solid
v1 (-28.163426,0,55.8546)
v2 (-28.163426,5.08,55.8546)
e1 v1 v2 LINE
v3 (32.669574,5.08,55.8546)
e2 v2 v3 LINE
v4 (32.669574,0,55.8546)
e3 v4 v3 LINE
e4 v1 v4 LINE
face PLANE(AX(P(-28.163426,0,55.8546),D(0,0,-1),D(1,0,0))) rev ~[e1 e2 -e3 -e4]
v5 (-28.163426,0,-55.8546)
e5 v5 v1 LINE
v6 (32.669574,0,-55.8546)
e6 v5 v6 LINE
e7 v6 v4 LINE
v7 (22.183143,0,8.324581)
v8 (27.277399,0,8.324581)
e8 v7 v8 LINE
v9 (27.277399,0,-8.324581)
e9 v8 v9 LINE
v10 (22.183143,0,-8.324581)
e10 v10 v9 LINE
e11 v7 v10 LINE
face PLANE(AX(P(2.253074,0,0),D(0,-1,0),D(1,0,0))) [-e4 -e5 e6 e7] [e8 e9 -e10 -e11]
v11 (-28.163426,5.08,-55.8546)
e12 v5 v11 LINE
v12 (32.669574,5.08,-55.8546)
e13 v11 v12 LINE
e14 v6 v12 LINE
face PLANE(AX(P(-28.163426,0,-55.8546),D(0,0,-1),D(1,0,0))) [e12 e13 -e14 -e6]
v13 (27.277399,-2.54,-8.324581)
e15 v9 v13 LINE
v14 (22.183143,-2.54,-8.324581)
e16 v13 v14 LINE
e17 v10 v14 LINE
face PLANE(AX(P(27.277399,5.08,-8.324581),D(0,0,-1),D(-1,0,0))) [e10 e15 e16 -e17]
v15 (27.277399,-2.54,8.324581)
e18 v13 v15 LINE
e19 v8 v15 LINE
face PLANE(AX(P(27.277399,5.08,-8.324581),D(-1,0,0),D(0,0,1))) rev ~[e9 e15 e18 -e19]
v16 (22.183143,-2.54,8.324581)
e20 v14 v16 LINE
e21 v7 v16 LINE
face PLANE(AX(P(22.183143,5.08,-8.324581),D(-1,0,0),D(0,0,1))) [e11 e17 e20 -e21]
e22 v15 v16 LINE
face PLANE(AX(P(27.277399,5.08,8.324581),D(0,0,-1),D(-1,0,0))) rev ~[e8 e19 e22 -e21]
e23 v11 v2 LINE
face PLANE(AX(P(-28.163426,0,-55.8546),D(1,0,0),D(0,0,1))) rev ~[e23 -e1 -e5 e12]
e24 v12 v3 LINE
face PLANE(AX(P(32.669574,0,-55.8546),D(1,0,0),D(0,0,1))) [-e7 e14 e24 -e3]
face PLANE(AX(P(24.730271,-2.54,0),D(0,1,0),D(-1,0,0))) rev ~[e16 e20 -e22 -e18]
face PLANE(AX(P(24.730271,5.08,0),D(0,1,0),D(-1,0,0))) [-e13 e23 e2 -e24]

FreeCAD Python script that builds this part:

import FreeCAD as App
import Part
import Sketcher

V = App.Vector
Q = App.Units.Quantity

doc = App.newDocument("Part")
body = doc.addObject("PartDesign::Body", "Body")

sketch1 = doc.addObject("Sketcher::SketchObject", "Sketch")
body.addObject(sketch1)
sketch1.AttachmentSupport = (doc.XZ_Plane, [""])
sketch1.MapMode = "FlatFace"
sketch1.addGeometry(Part.LineSegment(V(-28, 56, 0), V(-28, -56, 0)), False)
sketch1.addGeometry(Part.LineSegment(V(-28, -56, 0), V(33, -56, 0)), False)
sketch1.addGeometry(Part.LineSegment(V(33, -56, 0), V(33, 56, 0)), False)
sketch1.addGeometry(Part.LineSegment(V(33, 56, 0), V(-28, 56, 0)), False)
sketch1.addConstraint(Sketcher.Constraint("Coincident", 0, 2, 1, 1))
sketch1.addConstraint(Sketcher.Constraint("Coincident", 1, 2, 2, 1))
sketch1.addConstraint(Sketcher.Constraint("Coincident", 2, 2, 3, 1))
sketch1.addConstraint(Sketcher.Constraint("Coincident", 3, 2, 0, 1))
sketch1.addConstraint(Sketcher.Constraint("Vertical", 0))
sketch1.addConstraint(Sketcher.Constraint("Horizontal", 1))
sketch1.addConstraint(Sketcher.Constraint("Vertical", 2))
sketch1.addConstraint(Sketcher.Constraint("Horizontal", 3))
sketch1.addConstraint(Sketcher.Constraint("DistanceX", 1, 1, 1, 2, Q("2.395 in")))
sketch1.addConstraint(Sketcher.Constraint("DistanceY", 0, 2, 0, 1, Q("4.398 in")))
sketch1.addConstraint(Sketcher.Constraint("DistanceY", 0, 2, -1, 1, Q("2.199 in")))
sketch1.addConstraint(Sketcher.Constraint("DistanceX", 0, 2, -1, 1, Q("28.163426 mm")))
pad1 = doc.addObject("PartDesign::Pad", "Pad")
body.addObject(pad1)
pad1.Profile = sketch1
pad1.Length = Q("0.2 in")
pad1.Reversed = True

sketch2 = doc.addObject("Sketcher::SketchObject", "Sketch001")
body.addObject(sketch2)
sketch2.AttachmentSupport = (doc.XZ_Plane, [""])
sketch2.MapMode = "FlatFace"
sketch2.AttachmentOffset = App.Placement(V(0, 0, -0.2 * 25.4), App.Rotation())
sketch2.addGeometry(Part.LineSegment(V(27, 8, 0), V(27, -8, 0)), False)
sketch2.addGeometry(Part.LineSegment(V(27, -8, 0), V(22, -8, 0)), False)
sketch2.addGeometry(Part.LineSegment(V(22, -8, 0), V(22, 8, 0)), False)
sketch2.addGeometry(Part.LineSegment(V(22, 8, 0), V(27, 8, 0)), False)
sketch2.addConstraint(Sketcher.Constraint("Coincident", 0, 2, 1, 1))
sketch2.addConstraint(Sketcher.Constraint("Coincident", 1, 2, 2, 1))
sketch2.addConstraint(Sketcher.Constraint("Coincident", 2, 2, 3, 1))
sketch2.addConstraint(Sketcher.Constraint("Coincident", 3, 2, 0, 1))
sketch2.addConstraint(Sketcher.Constraint("Vertical", 0))
sketch2.addConstraint(Sketcher.Constraint("Horizontal", 1))
sketch2.addConstraint(Sketcher.Constraint("Vertical", 2))
sketch2.addConstraint(Sketcher.Constraint("Horizontal", 3))
sketch2.addConstraint(Sketcher.Constraint("DistanceX", -1, 1, 0, 2, Q("27.277399 mm")))
sketch2.addConstraint(Sketcher.Constraint("DistanceX", 1, 2, 1, 1, Q("5.094256 mm")))
sketch2.addConstraint(Sketcher.Constraint("DistanceY", 0, 2, 0, 1, Q("16.649162 mm")))
sketch2.addConstraint(Sketcher.Constraint("DistanceY", 0, 2, -1, 1, Q("8.324581 mm")))
pad2 = doc.addObject("PartDesign::Pad", "Pad001")
body.addObject(pad2)
pad2.Profile = sketch2
pad2.Length = Q("0.3 in")

doc.recompute()
